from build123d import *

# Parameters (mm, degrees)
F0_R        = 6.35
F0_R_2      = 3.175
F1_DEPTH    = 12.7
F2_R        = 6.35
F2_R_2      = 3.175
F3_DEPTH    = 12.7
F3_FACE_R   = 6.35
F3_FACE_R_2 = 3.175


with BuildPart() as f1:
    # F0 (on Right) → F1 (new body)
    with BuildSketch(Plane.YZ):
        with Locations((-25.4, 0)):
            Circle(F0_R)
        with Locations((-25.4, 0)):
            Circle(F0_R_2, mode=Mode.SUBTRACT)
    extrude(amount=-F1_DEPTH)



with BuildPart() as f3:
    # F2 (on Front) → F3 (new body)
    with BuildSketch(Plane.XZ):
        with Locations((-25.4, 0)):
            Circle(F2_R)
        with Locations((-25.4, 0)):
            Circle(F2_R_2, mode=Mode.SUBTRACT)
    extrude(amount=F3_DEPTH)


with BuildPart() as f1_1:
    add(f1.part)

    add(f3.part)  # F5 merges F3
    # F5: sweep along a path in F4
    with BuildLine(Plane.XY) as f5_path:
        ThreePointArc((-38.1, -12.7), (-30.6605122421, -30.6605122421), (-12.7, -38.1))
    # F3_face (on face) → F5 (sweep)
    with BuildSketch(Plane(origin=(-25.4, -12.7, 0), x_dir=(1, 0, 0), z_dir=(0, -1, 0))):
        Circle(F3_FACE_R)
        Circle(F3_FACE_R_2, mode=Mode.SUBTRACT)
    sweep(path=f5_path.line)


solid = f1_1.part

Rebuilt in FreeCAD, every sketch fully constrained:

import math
import FreeCAD as App
import Part
import Sketcher
from FreeCAD import Vector
Q = App.Units.Quantity

doc = App.newDocument("Part")
params = doc.addObject("Spreadsheet::Sheet", "Params")
for row, (alias, value) in enumerate([
    ("sketch1_diameter", "0.5 in"),
    ("sketch1_diameter2", "0.25 in"),
    ("pad1_length", "0.5 in"),
    ("sketch2_diameter", "0.5 in"),
    ("sketch2_diameter2", "0.25 in"),
    ("pad2_length", "0.5 in"),
    ("sketch3_diameter", "0.5 in"),
    ("sketch3_diameter2", "0.25 in"),
    ("sketch4_radius", "1 in"),
    ("sketch4_width", "1 in"),
    ("sketch4_height", "1 in"),
], start=1):
    params.set(f"A{row}", alias)
    params.set(f"B{row}", "=" + value)
    params.setAlias(f"B{row}", alias)

body = doc.addObject("PartDesign::Body", "Body")

# Sketch on YZ plane
sketch1 = doc.addObject("Sketcher::SketchObject", "Sketch")
body.addObject(sketch1)
sketch1.AttachmentSupport = (doc.YZ_Plane, [""])
sketch1.MapMode = "FlatFace"
sketch1.addGeometry([
    Part.Circle(Vector(-25.4, 0, 0), Vector(0, 0, 1), 6.3),
    Part.Circle(Vector(-25.4, 0, 0), Vector(0, 0, 1), 3.2),
], False)
sketch1.addConstraint([
    Sketcher.Constraint("Coincident", 1, 3, 0, 3),
    Sketcher.Constraint("PointOnObject", 0, 3, -1),
    Sketcher.Constraint("Diameter", 0, Q("0.5 in")),
    Sketcher.Constraint("Diameter", 1, Q("0.25 in")),
    Sketcher.Constraint("DistanceX", 0, 3, -1, 1, Q("1 in")),
])
sketch1.setExpression("Constraints[2]", "Params.sketch1_diameter")
sketch1.setExpression("Constraints[3]", "Params.sketch1_diameter2")
pad1 = doc.addObject("PartDesign::Pad", "Pad")
body.addObject(pad1)
pad1.Profile = sketch1
pad1.setExpression("Length", "Params.pad1_length")
pad1.Reversed = True
body2 = doc.addObject("PartDesign::Body", "Body001")

# Sketch on XZ plane
sketch2 = doc.addObject("Sketcher::SketchObject", "Sketch001")
body2.addObject(sketch2)
sketch2.AttachmentSupport = (doc.getObject("XZ_Plane001"), [""])
sketch2.MapMode = "FlatFace"
sketch2.addGeometry([
    Part.Circle(Vector(-25.4, 0, 0), Vector(0, 0, 1), 6.3),
    Part.Circle(Vector(-25.4, 0, 0), Vector(0, 0, 1), 3.2),
], False)
sketch2.addConstraint([
    Sketcher.Constraint("Coincident", 1, 3, 0, 3),
    Sketcher.Constraint("PointOnObject", 0, 3, -1),
    Sketcher.Constraint("Diameter", 0, Q("0.5 in")),
    Sketcher.Constraint("Diameter", 1, Q("0.25 in")),
    Sketcher.Constraint("DistanceX", 0, 3, -1, 1, Q("1 in")),
])
sketch2.setExpression("Constraints[2]", "Params.sketch2_diameter")
sketch2.setExpression("Constraints[3]", "Params.sketch2_diameter2")
pad2 = doc.addObject("PartDesign::Pad", "Pad001")
body2.addObject(pad2)
pad2.Profile = sketch2
pad2.setExpression("Length", "Params.pad2_length")
body.AllowCompound = True
doc.recompute()

boolean = doc.addObject("PartDesign::Boolean", "Boolean")
body.addObject(boolean)
boolean.Type = "Fuse"
boolean.addObjects([body2])

# Sketch on XZ plane
sketch3 = doc.addObject("Sketcher::SketchObject", "Sketch002")
body.addObject(sketch3)
sketch3.AttachmentSupport = (doc.XZ_Plane, [""])
sketch3.MapMode = "FlatFace"
sketch3.AttachmentOffset = App.Placement(Vector(0, 0, 0.5 * 25.4), App.Rotation())
sketch3.addGeometry([
    Part.Circle(Vector(-25.4, 0, 0), Vector(0, 0, 1), 6.3),
    Part.Circle(Vector(-25.4, 0, 0), Vector(0, 0, 1), 3.2),
], False)
sketch3.addConstraint([
    Sketcher.Constraint("Coincident", 1, 3, 0, 3),
    Sketcher.Constraint("PointOnObject", 0, 3, -1),
    Sketcher.Constraint("Diameter", 0, Q("0.5 in")),
    Sketcher.Constraint("Diameter", 1, Q("0.25 in")),
    Sketcher.Constraint("DistanceX", 0, 3, -1, 1, Q("1 in")),
])
sketch3.setExpression("Constraints[2]", "Params.sketch3_diameter")
sketch3.setExpression("Constraints[3]", "Params.sketch3_diameter2")

# Sketch on XY plane
sketch4 = doc.addObject("Sketcher::SketchObject", "Sketch003")
body.addObject(sketch4)
sketch4.AttachmentSupport = (doc.XY_Plane, [""])
sketch4.MapMode = "FlatFace"
sketch4.addGeometry(Part.ArcOfCircle(Part.Circle(Vector(-13, -13, 0), Vector(0, 0, 1), 25), math.radians(180), math.radians(270)), False)
sketch4.addConstraint([
    Sketcher.Constraint("Radius", 0, Q("1 in")),
    Sketcher.Constraint("DistanceX", 0, 1, 0, 2, Q("1 in")),
    Sketcher.Constraint("DistanceY", 0, 2, 0, 1, Q("1 in")),
    Sketcher.Constraint("DistanceX", 0, 3, -1, 1, Q("0.5 in")),
    Sketcher.Constraint("DistanceY", 0, 3, -1, 1, Q("0.5 in")),
])
sketch4.setExpression("Constraints[0]", "Params.sketch4_radius")
sketch4.setExpression("Constraints[1]", "Params.sketch4_width")
sketch4.setExpression("Constraints[2]", "Params.sketch4_height")
doc.recompute()

additivepipe = doc.addObject("PartDesign::AdditivePipe", "AdditivePipe")
body.addObject(additivepipe)
additivepipe.Profile = sketch3
additivepipe.Spine = (sketch4, ["Edge1"])

doc.recompute()
